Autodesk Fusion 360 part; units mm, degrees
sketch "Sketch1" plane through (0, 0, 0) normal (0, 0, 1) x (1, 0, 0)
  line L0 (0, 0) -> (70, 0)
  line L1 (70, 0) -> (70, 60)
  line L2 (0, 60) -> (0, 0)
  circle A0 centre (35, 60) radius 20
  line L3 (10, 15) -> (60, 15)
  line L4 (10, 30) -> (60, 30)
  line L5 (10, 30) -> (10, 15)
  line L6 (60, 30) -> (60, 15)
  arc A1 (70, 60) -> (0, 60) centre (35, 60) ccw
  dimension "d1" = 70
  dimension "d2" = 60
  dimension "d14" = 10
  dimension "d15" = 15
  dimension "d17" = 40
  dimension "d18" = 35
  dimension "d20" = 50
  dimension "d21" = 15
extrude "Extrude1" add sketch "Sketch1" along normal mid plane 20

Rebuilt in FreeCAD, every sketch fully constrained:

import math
import FreeCAD as App
import Part
import Sketcher
from FreeCAD import Vector

doc = App.newDocument("Part")
body = doc.addObject("PartDesign::Body", "Body")

sketch1 = body.newObject("Sketcher::SketchObject", "Sketch")
sketch1.AttachmentSupport = (doc.getObject("XY_Plane"), [""])
sketch1.MapMode = "FlatFace"
sketch1.addGeometry([
    Part.LineSegment(Vector(0, 60, 0), Vector(0, 0, 0)),
    Part.LineSegment(Vector(0, 0, 0), Vector(70, 0, 0)),
    Part.LineSegment(Vector(70, 0, 0), Vector(70, 60, 0)),
    Part.ArcOfCircle(Part.Circle(Vector(35, 60, 0), Vector(0, 0, 1), 35), math.radians(0), math.radians(180)),
    Part.LineSegment(Vector(60, 15, 0), Vector(10, 15, 0)),
    Part.LineSegment(Vector(10, 15, 0), Vector(10, 30, 0)),
    Part.LineSegment(Vector(10, 30, 0), Vector(60, 30, 0)),
    Part.LineSegment(Vector(60, 30, 0), Vector(60, 15, 0)),
    Part.Circle(Vector(35, 60, 0), Vector(0, 0, 1), 20),
], False)
sketch1.addConstraint([
    Sketcher.Constraint("Coincident", 0, 2, 1, 1),
    Sketcher.Constraint("Coincident", 1, 2, 2, 1),
    Sketcher.Constraint("Tangent", 2, 2, 3, 1),
    Sketcher.Constraint("Tangent", 3, 2, 0, 1),
    Sketcher.Constraint("Coincident", 4, 2, 5, 1),
    Sketcher.Constraint("Coincident", 5, 2, 6, 1),
    Sketcher.Constraint("Coincident", 6, 2, 7, 1),
    Sketcher.Constraint("Coincident", 7, 2, 4, 1),
    Sketcher.Constraint("Vertical", 0),
    Sketcher.Constraint("Horizontal", 1),
    Sketcher.Constraint("Vertical", 2),
    Sketcher.Constraint("Horizontal", 4),
    Sketcher.Constraint("Vertical", 5),
    Sketcher.Constraint("Horizontal", 6),
    Sketcher.Constraint("Vertical", 7),
    Sketcher.Constraint("Coincident", 0, 2, -1, 1),
    Sketcher.Constraint("Coincident", 8, 3, 3, 3),
    Sketcher.Constraint("Diameter", 8, 40.0),
    Sketcher.Constraint("Radius", 3, 35.0),
    Sketcher.Constraint("DistanceX", 4, 2, 4, 1, 50.0),
    Sketcher.Constraint("DistanceY", 0, 2, 0, 1, 60.0),
    Sketcher.Constraint("DistanceY", 5, 1, 5, 2, 15.0),
    Sketcher.Constraint("DistanceX", -1, 1, 4, 2, 10.0),
    Sketcher.Constraint("DistanceY", -1, 1, 4, 2, 15.0),
])
pad1 = body.newObject("PartDesign::Pad", "Pad")
pad1.Profile = sketch1
pad1.Length = 20
pad1.Midplane = True

doc.recompute()
